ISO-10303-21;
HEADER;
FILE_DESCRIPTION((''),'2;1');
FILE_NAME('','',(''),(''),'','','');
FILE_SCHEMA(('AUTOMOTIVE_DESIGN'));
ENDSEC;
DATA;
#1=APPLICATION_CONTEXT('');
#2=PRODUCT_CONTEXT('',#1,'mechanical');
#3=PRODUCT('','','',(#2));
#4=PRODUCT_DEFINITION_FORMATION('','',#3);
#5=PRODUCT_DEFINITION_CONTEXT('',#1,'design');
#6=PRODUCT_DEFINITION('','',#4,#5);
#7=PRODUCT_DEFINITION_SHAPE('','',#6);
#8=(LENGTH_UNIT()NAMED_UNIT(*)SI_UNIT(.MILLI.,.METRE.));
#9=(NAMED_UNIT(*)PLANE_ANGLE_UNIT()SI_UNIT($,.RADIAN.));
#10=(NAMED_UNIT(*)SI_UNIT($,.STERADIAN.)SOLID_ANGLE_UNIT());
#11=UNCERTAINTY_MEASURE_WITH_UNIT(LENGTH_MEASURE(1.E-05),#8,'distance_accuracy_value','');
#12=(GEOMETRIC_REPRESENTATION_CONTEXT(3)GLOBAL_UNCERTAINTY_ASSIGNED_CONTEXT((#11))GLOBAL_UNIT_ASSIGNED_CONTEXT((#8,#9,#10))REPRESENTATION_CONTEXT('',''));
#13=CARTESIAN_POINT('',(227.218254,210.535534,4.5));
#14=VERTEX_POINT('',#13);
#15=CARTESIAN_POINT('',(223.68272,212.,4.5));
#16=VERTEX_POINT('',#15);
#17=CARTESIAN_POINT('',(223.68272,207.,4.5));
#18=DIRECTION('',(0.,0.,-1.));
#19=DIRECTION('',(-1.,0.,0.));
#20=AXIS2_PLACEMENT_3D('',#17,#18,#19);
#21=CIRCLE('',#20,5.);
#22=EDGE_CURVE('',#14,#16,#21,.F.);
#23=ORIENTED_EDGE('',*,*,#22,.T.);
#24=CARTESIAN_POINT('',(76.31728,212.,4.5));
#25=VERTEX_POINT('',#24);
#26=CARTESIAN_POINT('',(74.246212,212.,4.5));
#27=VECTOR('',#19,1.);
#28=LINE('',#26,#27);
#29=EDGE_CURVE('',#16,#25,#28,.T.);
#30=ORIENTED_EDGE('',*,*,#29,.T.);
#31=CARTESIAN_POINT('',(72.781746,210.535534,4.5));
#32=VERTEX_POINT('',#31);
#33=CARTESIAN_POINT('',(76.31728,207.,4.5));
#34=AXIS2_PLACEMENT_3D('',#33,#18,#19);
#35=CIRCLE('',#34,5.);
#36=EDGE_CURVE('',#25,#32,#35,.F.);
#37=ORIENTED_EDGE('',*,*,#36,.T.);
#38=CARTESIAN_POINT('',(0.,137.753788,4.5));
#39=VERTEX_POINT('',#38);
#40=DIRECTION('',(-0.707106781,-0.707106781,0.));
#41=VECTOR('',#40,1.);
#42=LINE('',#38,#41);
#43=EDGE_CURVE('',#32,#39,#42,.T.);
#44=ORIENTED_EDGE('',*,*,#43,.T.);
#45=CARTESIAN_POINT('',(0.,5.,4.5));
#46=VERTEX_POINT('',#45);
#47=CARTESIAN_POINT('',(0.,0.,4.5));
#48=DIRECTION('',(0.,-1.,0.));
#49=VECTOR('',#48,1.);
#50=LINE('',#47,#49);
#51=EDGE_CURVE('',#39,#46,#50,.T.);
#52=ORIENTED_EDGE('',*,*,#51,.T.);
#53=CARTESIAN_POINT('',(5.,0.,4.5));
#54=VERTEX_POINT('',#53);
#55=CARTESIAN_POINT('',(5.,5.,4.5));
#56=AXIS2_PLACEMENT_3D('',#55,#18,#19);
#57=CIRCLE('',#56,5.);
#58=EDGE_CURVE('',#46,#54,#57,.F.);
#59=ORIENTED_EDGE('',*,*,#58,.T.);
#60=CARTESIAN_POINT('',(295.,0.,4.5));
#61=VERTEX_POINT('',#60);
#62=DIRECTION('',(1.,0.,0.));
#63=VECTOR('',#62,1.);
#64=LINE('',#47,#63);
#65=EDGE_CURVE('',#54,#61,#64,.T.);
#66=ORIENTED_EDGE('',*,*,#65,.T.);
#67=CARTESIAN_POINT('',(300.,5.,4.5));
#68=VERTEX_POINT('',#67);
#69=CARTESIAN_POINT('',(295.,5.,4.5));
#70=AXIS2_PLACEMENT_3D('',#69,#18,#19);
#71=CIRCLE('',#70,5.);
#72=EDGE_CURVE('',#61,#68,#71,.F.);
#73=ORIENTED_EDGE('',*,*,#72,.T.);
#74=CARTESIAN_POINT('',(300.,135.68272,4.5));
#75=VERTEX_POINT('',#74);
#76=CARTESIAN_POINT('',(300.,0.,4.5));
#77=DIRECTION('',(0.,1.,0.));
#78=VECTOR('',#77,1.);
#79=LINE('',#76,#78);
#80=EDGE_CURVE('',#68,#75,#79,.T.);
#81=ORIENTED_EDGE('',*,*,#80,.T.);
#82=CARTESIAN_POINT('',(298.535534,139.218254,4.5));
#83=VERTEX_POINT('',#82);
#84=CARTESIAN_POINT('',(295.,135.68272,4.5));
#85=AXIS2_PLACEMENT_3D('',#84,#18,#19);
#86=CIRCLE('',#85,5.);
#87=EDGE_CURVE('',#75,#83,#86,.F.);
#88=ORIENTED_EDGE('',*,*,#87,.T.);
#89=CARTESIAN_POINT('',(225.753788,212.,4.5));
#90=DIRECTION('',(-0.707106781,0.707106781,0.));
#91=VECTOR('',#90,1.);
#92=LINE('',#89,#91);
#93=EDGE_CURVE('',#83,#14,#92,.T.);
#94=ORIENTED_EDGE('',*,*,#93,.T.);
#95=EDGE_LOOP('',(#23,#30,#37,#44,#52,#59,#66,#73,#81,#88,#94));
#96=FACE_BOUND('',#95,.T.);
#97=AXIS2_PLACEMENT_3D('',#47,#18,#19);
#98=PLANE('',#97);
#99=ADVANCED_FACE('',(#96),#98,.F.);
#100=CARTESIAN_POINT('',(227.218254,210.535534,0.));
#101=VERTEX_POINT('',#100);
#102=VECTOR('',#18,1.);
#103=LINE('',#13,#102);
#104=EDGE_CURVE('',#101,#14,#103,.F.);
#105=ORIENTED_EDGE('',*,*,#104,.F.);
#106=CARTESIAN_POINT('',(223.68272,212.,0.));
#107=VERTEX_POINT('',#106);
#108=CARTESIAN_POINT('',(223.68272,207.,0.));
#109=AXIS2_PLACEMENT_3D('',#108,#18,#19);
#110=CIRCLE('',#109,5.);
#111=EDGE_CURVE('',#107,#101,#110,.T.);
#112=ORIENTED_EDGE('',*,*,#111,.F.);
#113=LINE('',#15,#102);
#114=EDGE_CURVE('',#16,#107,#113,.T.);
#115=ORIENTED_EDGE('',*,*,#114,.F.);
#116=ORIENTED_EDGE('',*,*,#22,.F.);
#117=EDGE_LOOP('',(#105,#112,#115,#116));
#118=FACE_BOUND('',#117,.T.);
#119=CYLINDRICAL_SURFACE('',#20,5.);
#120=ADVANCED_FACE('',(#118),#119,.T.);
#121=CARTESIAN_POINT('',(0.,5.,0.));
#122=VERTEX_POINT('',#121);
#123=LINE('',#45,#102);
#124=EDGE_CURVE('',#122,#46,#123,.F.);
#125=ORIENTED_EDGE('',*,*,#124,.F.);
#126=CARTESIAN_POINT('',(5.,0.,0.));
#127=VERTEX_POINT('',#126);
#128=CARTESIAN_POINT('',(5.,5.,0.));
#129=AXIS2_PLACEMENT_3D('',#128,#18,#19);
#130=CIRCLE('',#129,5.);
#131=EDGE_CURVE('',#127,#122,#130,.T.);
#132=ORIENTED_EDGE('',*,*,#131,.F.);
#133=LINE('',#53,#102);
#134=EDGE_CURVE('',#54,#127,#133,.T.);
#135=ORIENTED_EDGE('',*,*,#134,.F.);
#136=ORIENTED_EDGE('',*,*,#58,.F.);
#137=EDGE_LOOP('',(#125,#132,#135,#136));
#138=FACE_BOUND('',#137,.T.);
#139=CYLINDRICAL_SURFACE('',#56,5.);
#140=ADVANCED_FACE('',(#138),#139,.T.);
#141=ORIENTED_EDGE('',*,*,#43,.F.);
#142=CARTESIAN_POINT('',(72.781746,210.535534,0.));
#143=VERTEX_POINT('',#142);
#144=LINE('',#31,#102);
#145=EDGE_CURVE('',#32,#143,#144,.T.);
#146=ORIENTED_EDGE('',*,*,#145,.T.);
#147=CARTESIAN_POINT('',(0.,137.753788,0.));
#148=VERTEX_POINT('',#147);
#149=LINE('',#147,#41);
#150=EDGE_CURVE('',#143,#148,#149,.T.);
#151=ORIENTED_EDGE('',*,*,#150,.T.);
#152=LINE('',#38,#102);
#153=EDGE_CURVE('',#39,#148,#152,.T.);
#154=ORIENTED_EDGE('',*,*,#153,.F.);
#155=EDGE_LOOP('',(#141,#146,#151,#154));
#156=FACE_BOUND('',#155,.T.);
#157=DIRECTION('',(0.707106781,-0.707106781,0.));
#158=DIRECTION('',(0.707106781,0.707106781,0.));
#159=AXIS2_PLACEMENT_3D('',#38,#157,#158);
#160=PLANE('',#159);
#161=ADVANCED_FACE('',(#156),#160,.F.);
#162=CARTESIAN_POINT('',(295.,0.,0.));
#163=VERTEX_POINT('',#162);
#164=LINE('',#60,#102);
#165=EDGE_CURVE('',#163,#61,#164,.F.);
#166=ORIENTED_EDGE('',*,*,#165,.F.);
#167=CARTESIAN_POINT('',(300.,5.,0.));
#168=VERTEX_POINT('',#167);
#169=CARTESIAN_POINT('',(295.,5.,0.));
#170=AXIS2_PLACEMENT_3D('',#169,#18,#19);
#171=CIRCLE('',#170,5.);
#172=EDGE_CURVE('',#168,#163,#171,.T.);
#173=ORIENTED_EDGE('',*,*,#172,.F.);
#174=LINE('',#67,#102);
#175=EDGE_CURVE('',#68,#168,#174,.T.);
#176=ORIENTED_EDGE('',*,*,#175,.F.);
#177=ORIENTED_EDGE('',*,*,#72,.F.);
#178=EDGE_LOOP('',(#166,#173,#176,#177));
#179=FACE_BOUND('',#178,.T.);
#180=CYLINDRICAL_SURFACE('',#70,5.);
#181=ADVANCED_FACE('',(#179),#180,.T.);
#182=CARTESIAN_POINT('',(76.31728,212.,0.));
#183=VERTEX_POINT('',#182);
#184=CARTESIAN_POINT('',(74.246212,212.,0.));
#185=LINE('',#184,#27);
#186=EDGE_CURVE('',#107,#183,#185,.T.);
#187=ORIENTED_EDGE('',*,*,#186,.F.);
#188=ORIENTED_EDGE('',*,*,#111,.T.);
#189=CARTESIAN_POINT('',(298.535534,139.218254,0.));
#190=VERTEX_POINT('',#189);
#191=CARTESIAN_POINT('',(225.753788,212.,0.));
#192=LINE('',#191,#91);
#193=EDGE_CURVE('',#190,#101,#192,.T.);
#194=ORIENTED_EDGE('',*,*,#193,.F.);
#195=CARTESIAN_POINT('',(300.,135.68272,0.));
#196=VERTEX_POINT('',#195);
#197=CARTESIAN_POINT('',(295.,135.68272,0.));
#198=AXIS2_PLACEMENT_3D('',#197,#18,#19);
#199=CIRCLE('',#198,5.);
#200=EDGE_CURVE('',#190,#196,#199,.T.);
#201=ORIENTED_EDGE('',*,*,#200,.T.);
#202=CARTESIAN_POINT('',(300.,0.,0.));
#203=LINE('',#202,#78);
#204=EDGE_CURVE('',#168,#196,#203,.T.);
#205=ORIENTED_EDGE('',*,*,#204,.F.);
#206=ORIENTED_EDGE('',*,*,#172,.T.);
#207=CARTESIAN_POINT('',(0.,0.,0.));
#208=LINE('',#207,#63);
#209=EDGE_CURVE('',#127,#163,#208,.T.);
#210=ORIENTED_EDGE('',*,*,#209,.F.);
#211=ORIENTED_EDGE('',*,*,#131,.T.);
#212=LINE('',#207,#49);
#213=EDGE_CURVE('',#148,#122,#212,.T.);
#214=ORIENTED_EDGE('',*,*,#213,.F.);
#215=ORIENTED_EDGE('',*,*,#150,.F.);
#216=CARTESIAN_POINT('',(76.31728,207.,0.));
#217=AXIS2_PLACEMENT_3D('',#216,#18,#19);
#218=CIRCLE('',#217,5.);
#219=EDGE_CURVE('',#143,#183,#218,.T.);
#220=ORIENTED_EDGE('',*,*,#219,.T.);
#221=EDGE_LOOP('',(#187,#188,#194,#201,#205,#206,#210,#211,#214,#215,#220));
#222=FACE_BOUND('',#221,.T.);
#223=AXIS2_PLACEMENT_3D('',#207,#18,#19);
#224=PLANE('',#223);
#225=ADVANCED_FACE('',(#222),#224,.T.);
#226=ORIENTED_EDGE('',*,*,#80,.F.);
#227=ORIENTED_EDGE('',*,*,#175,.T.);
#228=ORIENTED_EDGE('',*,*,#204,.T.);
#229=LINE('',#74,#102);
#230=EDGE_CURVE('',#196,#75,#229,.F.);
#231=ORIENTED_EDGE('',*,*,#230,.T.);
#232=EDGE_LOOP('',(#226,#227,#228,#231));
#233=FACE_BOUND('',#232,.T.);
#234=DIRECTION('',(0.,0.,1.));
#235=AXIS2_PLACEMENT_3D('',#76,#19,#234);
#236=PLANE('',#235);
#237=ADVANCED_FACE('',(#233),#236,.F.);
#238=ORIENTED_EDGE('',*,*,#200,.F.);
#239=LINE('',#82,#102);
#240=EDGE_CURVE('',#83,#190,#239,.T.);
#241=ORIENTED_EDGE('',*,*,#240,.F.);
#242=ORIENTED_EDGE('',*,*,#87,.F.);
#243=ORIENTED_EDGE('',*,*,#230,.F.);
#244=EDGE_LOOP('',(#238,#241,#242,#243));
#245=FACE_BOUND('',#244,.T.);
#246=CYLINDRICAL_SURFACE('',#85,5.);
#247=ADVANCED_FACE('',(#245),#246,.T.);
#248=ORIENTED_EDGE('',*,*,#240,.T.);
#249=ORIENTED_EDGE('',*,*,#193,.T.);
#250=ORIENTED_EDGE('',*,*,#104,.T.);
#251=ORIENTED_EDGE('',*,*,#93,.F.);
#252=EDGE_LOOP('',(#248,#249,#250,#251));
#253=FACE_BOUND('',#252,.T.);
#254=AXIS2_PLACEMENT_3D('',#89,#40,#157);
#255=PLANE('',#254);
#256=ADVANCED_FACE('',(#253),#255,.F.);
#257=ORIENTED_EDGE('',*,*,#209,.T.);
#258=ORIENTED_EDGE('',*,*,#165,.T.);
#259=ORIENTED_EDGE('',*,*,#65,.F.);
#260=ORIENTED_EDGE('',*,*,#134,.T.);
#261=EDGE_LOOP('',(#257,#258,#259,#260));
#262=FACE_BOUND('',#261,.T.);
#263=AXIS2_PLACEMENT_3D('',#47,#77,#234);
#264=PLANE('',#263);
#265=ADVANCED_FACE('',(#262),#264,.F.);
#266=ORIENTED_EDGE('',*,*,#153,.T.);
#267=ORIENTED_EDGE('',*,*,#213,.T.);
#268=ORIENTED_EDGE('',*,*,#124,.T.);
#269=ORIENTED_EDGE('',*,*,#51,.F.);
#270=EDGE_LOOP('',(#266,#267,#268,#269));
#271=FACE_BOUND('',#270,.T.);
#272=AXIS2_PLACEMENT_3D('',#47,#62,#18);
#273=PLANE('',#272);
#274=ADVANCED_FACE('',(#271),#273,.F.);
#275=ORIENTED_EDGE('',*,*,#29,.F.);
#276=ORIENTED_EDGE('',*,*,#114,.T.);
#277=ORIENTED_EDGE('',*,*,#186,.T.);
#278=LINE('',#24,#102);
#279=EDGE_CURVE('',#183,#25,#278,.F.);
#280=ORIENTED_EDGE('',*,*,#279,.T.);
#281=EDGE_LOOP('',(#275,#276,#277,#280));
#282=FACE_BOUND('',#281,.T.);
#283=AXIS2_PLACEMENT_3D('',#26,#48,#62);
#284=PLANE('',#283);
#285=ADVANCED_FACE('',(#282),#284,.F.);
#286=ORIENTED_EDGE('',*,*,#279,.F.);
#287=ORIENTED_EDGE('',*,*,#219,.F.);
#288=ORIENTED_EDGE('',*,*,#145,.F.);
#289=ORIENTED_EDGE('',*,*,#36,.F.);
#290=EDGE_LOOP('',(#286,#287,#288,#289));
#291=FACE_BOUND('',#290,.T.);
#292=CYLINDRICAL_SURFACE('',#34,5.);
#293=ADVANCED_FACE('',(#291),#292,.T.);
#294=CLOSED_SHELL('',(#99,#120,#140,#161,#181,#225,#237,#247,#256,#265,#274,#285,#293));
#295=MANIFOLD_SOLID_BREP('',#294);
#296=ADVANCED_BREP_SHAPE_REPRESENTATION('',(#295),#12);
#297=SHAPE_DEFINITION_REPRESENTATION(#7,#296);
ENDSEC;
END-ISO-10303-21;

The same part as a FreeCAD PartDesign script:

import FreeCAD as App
import Part
import Sketcher


def edges_at(feature, points):
    """Names of the edges that pass closest to the given points."""
    edges = feature.Shape.Edges
    near = lambda p: min(range(len(edges)), key=lambda i: edges[i].distToShape(Part.Vertex(*p))[0])
    return sorted({f"Edge{near(p) + 1}" for p in points})


def add_polygon(sketch, points):
    """Adds a closed chain of lines whose ends are joined by coincident constraints."""
    first, n = sketch.GeometryCount, len(points)
    for a, b in zip(points, points[1:] + points[:1]):
        sketch.addGeometry(Part.LineSegment(App.Vector(*a, 0), App.Vector(*b, 0)), False)
    for i in range(n):
        sketch.addConstraint(Sketcher.Constraint("Coincident", first + i, 2, first + (i + 1) % n, 1))

doc = App.newDocument("Part")
params = doc.addObject("Spreadsheet::Sheet", "Params")
for row, (alias, value) in enumerate([
    ("sketch1_width", "300 mm"),
    ("sketch1_length", "105 mm"),
    ("pad1_length", "4.5 mm"),
    ("fillet_radius", "5 mm"),
], start=1):
    params.set(f"A{row}", alias)
    params.set(f"B{row}", "=" + value)
    params.setAlias(f"B{row}", alias)

body = doc.addObject("PartDesign::Body", "Body")

# Sketch on XY plane
sketch1 = body.newObject("Sketcher::SketchObject", "Sketch")
sketch1.AttachmentSupport = (doc.getObject("XY_Plane"), [""])
sketch1.MapMode = "FlatFace"
add_polygon(sketch1, [(74, 212), (0, 138), (0, 0), (300, 0), (300, 138), (226, 212)])  # lines 0-5
sketch1.addConstraint(Sketcher.Constraint("Vertical", 1))
sketch1.addConstraint(Sketcher.Constraint("Horizontal", 2))
sketch1.addConstraint(Sketcher.Constraint("Vertical", 3))
sketch1.addConstraint(Sketcher.Constraint("Horizontal", 5))
sketch1.addConstraint(Sketcher.Constraint("Coincident", 1, 2, -1, 1))
sketch1.addConstraint(Sketcher.Constraint("Perpendicular", 0, 4))
sketch1.addConstraint(Sketcher.Constraint("Horizontal", 0, 2, 3, 2))
sketch1.addConstraint(Sketcher.Constraint("Equal", 0, 4))
sketch1.addConstraint(Sketcher.Constraint("DistanceX", 2, 1, 2, 2, 300.0))
sketch1.addConstraint(Sketcher.Constraint("Distance", 0, 105.0))
sketch1.addConstraint(Sketcher.Constraint("DistanceY", -1, 1, 4, 2, 212.0))
sketch1.setExpression("Constraints[14]", "Params.sketch1_width")
sketch1.setExpression("Constraints[15]", "Params.sketch1_length")
pad1 = body.newObject("PartDesign::Pad", "Pad")
pad1.Profile = sketch1
pad1.setExpression("Length", "Params.pad1_length")
doc.recompute()

fillet = body.newObject("PartDesign::Fillet", "Fillet")
fillet.Base = (pad1, edges_at(pad1, [
    (74.246, 212, 2.25),
    (225.754, 212, 2.25),
    (300, 137.754, 2.25),
    (300, 0, 2.25),
    (0, 0, 2.25),
]))
fillet.setExpression("Radius", "Params.fillet_radius")

doc.recompute()
